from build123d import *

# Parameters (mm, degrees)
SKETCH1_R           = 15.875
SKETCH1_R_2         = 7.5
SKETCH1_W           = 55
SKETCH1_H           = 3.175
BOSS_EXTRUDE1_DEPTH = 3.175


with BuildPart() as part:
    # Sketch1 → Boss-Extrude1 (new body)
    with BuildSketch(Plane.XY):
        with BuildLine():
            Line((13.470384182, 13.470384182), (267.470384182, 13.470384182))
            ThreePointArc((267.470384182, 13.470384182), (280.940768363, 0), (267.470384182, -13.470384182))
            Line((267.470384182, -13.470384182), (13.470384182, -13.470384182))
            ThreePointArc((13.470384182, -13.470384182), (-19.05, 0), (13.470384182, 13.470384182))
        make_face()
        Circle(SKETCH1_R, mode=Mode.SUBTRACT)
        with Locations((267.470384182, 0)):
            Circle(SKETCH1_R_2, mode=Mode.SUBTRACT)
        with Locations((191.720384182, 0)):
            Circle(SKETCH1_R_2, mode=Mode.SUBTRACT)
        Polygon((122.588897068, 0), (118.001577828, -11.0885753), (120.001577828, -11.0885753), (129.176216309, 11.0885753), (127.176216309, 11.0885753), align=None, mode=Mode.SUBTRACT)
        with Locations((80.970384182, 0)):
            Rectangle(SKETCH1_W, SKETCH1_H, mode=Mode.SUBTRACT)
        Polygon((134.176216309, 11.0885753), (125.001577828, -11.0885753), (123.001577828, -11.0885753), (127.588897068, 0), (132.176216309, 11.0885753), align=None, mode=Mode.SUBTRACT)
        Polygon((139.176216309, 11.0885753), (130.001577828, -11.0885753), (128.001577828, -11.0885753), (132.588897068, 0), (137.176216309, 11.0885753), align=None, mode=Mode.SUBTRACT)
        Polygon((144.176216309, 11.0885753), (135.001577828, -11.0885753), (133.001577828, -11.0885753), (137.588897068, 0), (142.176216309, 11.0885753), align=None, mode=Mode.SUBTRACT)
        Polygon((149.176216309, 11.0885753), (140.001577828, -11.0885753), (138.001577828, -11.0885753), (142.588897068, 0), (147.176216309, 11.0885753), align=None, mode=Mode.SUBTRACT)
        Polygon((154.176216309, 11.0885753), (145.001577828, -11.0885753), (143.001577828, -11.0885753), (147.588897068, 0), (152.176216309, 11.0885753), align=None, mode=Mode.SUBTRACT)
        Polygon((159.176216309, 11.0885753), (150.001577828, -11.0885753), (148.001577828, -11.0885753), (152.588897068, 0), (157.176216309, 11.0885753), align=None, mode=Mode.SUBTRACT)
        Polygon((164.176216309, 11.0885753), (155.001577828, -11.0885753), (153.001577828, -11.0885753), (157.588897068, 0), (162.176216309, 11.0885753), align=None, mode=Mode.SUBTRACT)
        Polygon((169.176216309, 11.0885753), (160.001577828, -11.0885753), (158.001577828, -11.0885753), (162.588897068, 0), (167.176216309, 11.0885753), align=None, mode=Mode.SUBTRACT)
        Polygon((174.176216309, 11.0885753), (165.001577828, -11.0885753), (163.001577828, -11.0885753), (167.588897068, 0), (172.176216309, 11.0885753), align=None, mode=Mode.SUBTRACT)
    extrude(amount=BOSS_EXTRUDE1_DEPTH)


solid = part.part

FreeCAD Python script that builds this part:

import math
import FreeCAD as App
import Part
import Sketcher
from FreeCAD import Vector


def add_polygon(sketch, points):
    """Adds a closed chain of lines whose ends are joined by coincident constraints."""
    first, n = sketch.GeometryCount, len(points)
    for a, b in zip(points, points[1:] + points[:1]):
        sketch.addGeometry(Part.LineSegment(App.Vector(*a, 0), App.Vector(*b, 0)), False)
    for i in range(n):
        sketch.addConstraint(Sketcher.Constraint("Coincident", first + i, 2, first + (i + 1) % n, 1))

doc = App.newDocument("Part")
body = doc.addObject("PartDesign::Body", "Body")

# Sketch on XY plane
sketch1 = body.newObject("Sketcher::SketchObject", "Sketch")
sketch1.AttachmentSupport = (doc.getObject("XY_Plane"), [""])
sketch1.MapMode = "FlatFace"
sketch1.addGeometry(Part.LineSegment(Vector(267.5, 13.5, 0), Vector(13.5, 13.5, 0)), False)  # 0
sketch1.addGeometry(Part.ArcOfCircle(Part.Circle(Vector(0, 0, 0), Vector(0, 0, 1), 19.1), math.radians(45), math.radians(315)), False)  # 1
sketch1.addGeometry(Part.LineSegment(Vector(13.5, -13.5, 0), Vector(267.5, -13.5, 0)), False)  # 2
sketch1.addGeometry(Part.ArcOfCircle(Part.Circle(Vector(267.5, 0, 0), Vector(0, 0, 1), 13.5), math.radians(-90), math.radians(90)), False)  # 3
add_polygon(sketch1, [(174.2, 11.1), (165, -11.1), (163, -11.1), (167.6, 0), (172.2, 11.1)])  # lines 4-8
add_polygon(sketch1, [(169.2, 11.1), (160, -11.1), (158, -11.1), (162.6, 0), (167.2, 11.1)])  # lines 9-13
add_polygon(sketch1, [(164.2, 11.1), (155, -11.1), (153, -11.1), (157.6, 0), (162.2, 11.1)])  # lines 14-18
add_polygon(sketch1, [(159.2, 11.1), (150, -11.1), (148, -11.1), (152.6, 0), (157.2, 11.1)])  # lines 19-23
add_polygon(sketch1, [(154.2, 11.1), (145, -11.1), (143, -11.1), (147.6, 0), (152.2, 11.1)])  # lines 24-28
add_polygon(sketch1, [(149.2, 11.1), (140, -11.1), (138, -11.1), (142.6, 0), (147.2, 11.1)])  # lines 29-33
add_polygon(sketch1, [(144.2, 11.1), (135, -11.1), (133, -11.1), (137.6, 0), (142.2, 11.1)])  # lines 34-38
add_polygon(sketch1, [(139.2, 11.1), (130, -11.1), (128, -11.1), (132.6, 0), (137.2, 11.1)])  # lines 39-43
add_polygon(sketch1, [(134.2, 11.1), (125, -11.1), (123, -11.1), (127.6, 0), (132.2, 11.1)])  # lines 44-48
sketch1.addGeometry(Part.Circle(Vector(267.5, 0, 0), Vector(0, 0, 1), 7.5), False)  # 49
sketch1.addGeometry(Part.Circle(Vector(191.7, 0, 0), Vector(0, 0, 1), 7.5), False)  # 50
add_polygon(sketch1, [(122.6, 0), (127.2, 11.1), (129.2, 11.1), (120, -11.1), (118, -11.1)])  # lines 51-55
add_polygon(sketch1, [(53.5, -1.6), (53.5, 1.6), (108.5, 1.6), (108.5, -1.6)])  # lines 56-59
sketch1.addGeometry(Part.Circle(Vector(0, 0, 0), Vector(0, 0, 1), 15.9), False)  # 60
sketch1.addConstraint(Sketcher.Constraint("Coincident", 0, 2, 1, 1))
sketch1.addConstraint(Sketcher.Constraint("Coincident", 1, 2, 2, 1))
sketch1.addConstraint(Sketcher.Constraint("Tangent", 2, 2, 3, 1))
sketch1.addConstraint(Sketcher.Constraint("Tangent", 3, 2, 0, 1))
sketch1.addConstraint(Sketcher.Constraint("Horizontal", 0))
sketch1.addConstraint(Sketcher.Constraint("Horizontal", 2))
sketch1.addConstraint(Sketcher.Constraint("Horizontal", 5))
sketch1.addConstraint(Sketcher.Constraint("Horizontal", 8))
sketch1.addConstraint(Sketcher.Constraint("Horizontal", 10))
sketch1.addConstraint(Sketcher.Constraint("Horizontal", 13))
sketch1.addConstraint(Sketcher.Constraint("Horizontal", 15))
sketch1.addConstraint(Sketcher.Constraint("Horizontal", 18))
sketch1.addConstraint(Sketcher.Constraint("Horizontal", 20))
sketch1.addConstraint(Sketcher.Constraint("Horizontal", 23))
sketch1.addConstraint(Sketcher.Constraint("Horizontal", 25))
sketch1.addConstraint(Sketcher.Constraint("Horizontal", 28))
sketch1.addConstraint(Sketcher.Constraint("Horizontal", 30))
sketch1.addConstraint(Sketcher.Constraint("Horizontal", 33))
sketch1.addConstraint(Sketcher.Constraint("Horizontal", 35))
sketch1.addConstraint(Sketcher.Constraint("Horizontal", 38))
sketch1.addConstraint(Sketcher.Constraint("Horizontal", 40))
sketch1.addConstraint(Sketcher.Constraint("Horizontal", 43))
sketch1.addConstraint(Sketcher.Constraint("Horizontal", 45))
sketch1.addConstraint(Sketcher.Constraint("Horizontal", 48))
sketch1.addConstraint(Sketcher.Constraint("Horizontal", 52))
sketch1.addConstraint(Sketcher.Constraint("Horizontal", 54))
sketch1.addConstraint(Sketcher.Constraint("Vertical", 56))
sketch1.addConstraint(Sketcher.Constraint("Horizontal", 57))
sketch1.addConstraint(Sketcher.Constraint("Vertical", 58))
sketch1.addConstraint(Sketcher.Constraint("Horizontal", 59))
sketch1.addConstraint(Sketcher.Constraint("Coincident", 1, 3, -1, 1))
sketch1.addConstraint(Sketcher.Constraint("Coincident", 60, 3, -1, 1))
sketch1.addConstraint(Sketcher.Constraint("Coincident", 49, 3, 3, 3))
sketch1.addConstraint(Sketcher.Constraint("Equal", 49, 50))
sketch1.addConstraint(Sketcher.Constraint("PointOnObject", 3, 3, -1))
sketch1.addConstraint(Sketcher.Constraint("PointOnObject", 50, 3, -1))
sketch1.addConstraint(Sketcher.Constraint("PointOnObject", 6, 2, -1))
sketch1.addConstraint(Sketcher.Constraint("PointOnObject", 11, 2, -1))
sketch1.addConstraint(Sketcher.Constraint("PointOnObject", 16, 2, -1))
sketch1.addConstraint(Sketcher.Constraint("PointOnObject", 21, 2, -1))
sketch1.addConstraint(Sketcher.Constraint("PointOnObject", 26, 2, -1))
sketch1.addConstraint(Sketcher.Constraint("PointOnObject", 31, 2, -1))
sketch1.addConstraint(Sketcher.Constraint("PointOnObject", 36, 2, -1))
sketch1.addConstraint(Sketcher.Constraint("PointOnObject", 41, 2, -1))
sketch1.addConstraint(Sketcher.Constraint("PointOnObject", 46, 2, -1))
sketch1.addConstraint(Sketcher.Constraint("PointOnObject", 55, 2, -1))
sketch1.addConstraint(Sketcher.Constraint("Parallel", 4, 6))
sketch1.addConstraint(Sketcher.Constraint("Parallel", 6, 7))
sketch1.addConstraint(Sketcher.Constraint("Parallel", 7, 9))
sketch1.addConstraint(Sketcher.Constraint("Parallel", 9, 11))
sketch1.addConstraint(Sketcher.Constraint("Parallel", 11, 12))
sketch1.addConstraint(Sketcher.Constraint("Parallel", 12, 14))
sketch1.addConstraint(Sketcher.Constraint("Parallel", 14, 16))
sketch1.addConstraint(Sketcher.Constraint("Parallel", 16, 17))
sketch1.addConstraint(Sketcher.Constraint("Parallel", 17, 19))
sketch1.addConstraint(Sketcher.Constraint("Parallel", 19, 21))
sketch1.addConstraint(Sketcher.Constraint("Parallel", 21, 22))
sketch1.addConstraint(Sketcher.Constraint("Parallel", 22, 24))
sketch1.addConstraint(Sketcher.Constraint("Parallel", 24, 26))
sketch1.addConstraint(Sketcher.Constraint("Parallel", 26, 27))
sketch1.addConstraint(Sketcher.Constraint("Parallel", 27, 29))
sketch1.addConstraint(Sketcher.Constraint("Parallel", 29, 31))
sketch1.addConstraint(Sketcher.Constraint("Parallel", 31, 32))
sketch1.addConstraint(Sketcher.Constraint("Parallel", 32, 34))
sketch1.addConstraint(Sketcher.Constraint("Parallel", 34, 36))
sketch1.addConstraint(Sketcher.Constraint("Parallel", 36, 37))
sketch1.addConstraint(Sketcher.Constraint("Parallel", 37, 39))
sketch1.addConstraint(Sketcher.Constraint("Parallel", 39, 41))
sketch1.addConstraint(Sketcher.Constraint("Parallel", 41, 42))
sketch1.addConstraint(Sketcher.Constraint("Parallel", 42, 44))
sketch1.addConstraint(Sketcher.Constraint("Parallel", 44, 46))
sketch1.addConstraint(Sketcher.Constraint("Parallel", 46, 47))
sketch1.addConstraint(Sketcher.Constraint("Parallel", 47, 51))
sketch1.addConstraint(Sketcher.Constraint("Parallel", 51, 53))
sketch1.addConstraint(Sketcher.Constraint("Parallel", 53, 55))
sketch1.addConstraint(Sketcher.Constraint("Horizontal", 5, 2, 9, 2))
sketch1.addConstraint(Sketcher.Constraint("Horizontal", 8, 2, 12, 2))
sketch1.addConstraint(Sketcher.Constraint("Horizontal", 10, 2, 14, 2))
sketch1.addConstraint(Sketcher.Constraint("Horizontal", 13, 2, 17, 2))
sketch1.addConstraint(Sketcher.Constraint("Horizontal", 15, 2, 19, 2))
sketch1.addConstraint(Sketcher.Constraint("Horizontal", 18, 2, 22, 2))
sketch1.addConstraint(Sketcher.Constraint("Horizontal", 20, 2, 24, 2))
sketch1.addConstraint(Sketcher.Constraint("Horizontal", 23, 2, 27, 2))
sketch1.addConstraint(Sketcher.Constraint("Horizontal", 25, 2, 29, 2))
sketch1.addConstraint(Sketcher.Constraint("Horizontal", 28, 2, 32, 2))
sketch1.addConstraint(Sketcher.Constraint("Horizontal", 30, 2, 34, 2))
sketch1.addConstraint(Sketcher.Constraint("Horizontal", 33, 2, 37, 2))
sketch1.addConstraint(Sketcher.Constraint("Horizontal", 35, 2, 39, 2))
sketch1.addConstraint(Sketcher.Constraint("Horizontal", 38, 2, 42, 2))
sketch1.addConstraint(Sketcher.Constraint("Horizontal", 40, 2, 44, 2))
sketch1.addConstraint(Sketcher.Constraint("Horizontal", 43, 2, 47, 2))
sketch1.addConstraint(Sketcher.Constraint("Horizontal", 48, 2, 51, 2))
sketch1.addConstraint(Sketcher.Constraint("Horizontal", 45, 2, 53, 2))
sketch1.addConstraint(Sketcher.Constraint("Equal", 8, 10))
sketch1.addConstraint(Sketcher.Constraint("Equal", 13, 15))
sketch1.addConstraint(Sketcher.Constraint("Equal", 18, 20))
sketch1.addConstraint(Sketcher.Constraint("Equal", 23, 25))
sketch1.addConstraint(Sketcher.Constraint("Equal", 28, 30))
sketch1.addConstraint(Sketcher.Constraint("Equal", 33, 35))
sketch1.addConstraint(Sketcher.Constraint("Equal", 38, 40))
sketch1.addConstraint(Sketcher.Constraint("Equal", 43, 45))
sketch1.addConstraint(Sketcher.Constraint("Equal", 48, 52))
sketch1.addConstraint(Sketcher.Constraint("Equal", 6, 7))
sketch1.addConstraint(Sketcher.Constraint("Diameter", 49, 15.0))
sketch1.addConstraint(Sketcher.Constraint("Diameter", 60, 31.75))
sketch1.addConstraint(Sketcher.Constraint("DistanceX", 0, 2, 0, 1, 254.0))
sketch1.addConstraint(Sketcher.Constraint("DistanceX", 5, 2, 5, 1, 2.0))
sketch1.addConstraint(Sketcher.Constraint("DistanceX", 57, 1, 57, 2, 55.0))
sketch1.addConstraint(Sketcher.Constraint("Radius", 1, 19.05))
sketch1.addConstraint(Sketcher.Constraint("Distance", 4, 24.0))
sketch1.addConstraint(Sketcher.Constraint("DistanceY", 56, 1, 56, 2, 3.175))
sketch1.addConstraint(Sketcher.Constraint("Radius", 3, 13.470384))
sketch1.addConstraint(Sketcher.Constraint("DistanceY", -1, 1, 56, 2, 1.5875))
sketch1.addConstraint(Sketcher.Constraint("DistanceX", -1, 1, 50, 3, 191.720384))
sketch1.addConstraint(Sketcher.Constraint("DistanceX", -1, 1, 4, 2, 165.001578))
sketch1.addConstraint(Sketcher.Constraint("DistanceY", 4, 2, -1, 1, 11.088575))
sketch1.addConstraint(Sketcher.Constraint("DistanceX", -1, 1, 9, 2, 160.001578))
sketch1.addConstraint(Sketcher.Constraint("DistanceX", -1, 1, 14, 2, 155.001578))
sketch1.addConstraint(Sketcher.Constraint("DistanceX", -1, 1, 19, 2, 150.001578))
sketch1.addConstraint(Sketcher.Constraint("DistanceX", -1, 1, 24, 2, 145.001578))
sketch1.addConstraint(Sketcher.Constraint("DistanceX", -1, 1, 29, 2, 140.001578))
sketch1.addConstraint(Sketcher.Constraint("DistanceX", -1, 1, 34, 2, 135.001578))
sketch1.addConstraint(Sketcher.Constraint("DistanceX", -1, 1, 39, 2, 130.001578))
sketch1.addConstraint(Sketcher.Constraint("DistanceX", -1, 1, 44, 2, 125.001578))
sketch1.addConstraint(Sketcher.Constraint("DistanceX", -1, 1, 51, 2, 127.176216))
sketch1.addConstraint(Sketcher.Constraint("DistanceX", -1, 1, 56, 2, 53.470384))
pad1 = body.newObject("PartDesign::Pad", "Pad")
pad1.Profile = sketch1
pad1.Length = 3.175

doc.recompute()
